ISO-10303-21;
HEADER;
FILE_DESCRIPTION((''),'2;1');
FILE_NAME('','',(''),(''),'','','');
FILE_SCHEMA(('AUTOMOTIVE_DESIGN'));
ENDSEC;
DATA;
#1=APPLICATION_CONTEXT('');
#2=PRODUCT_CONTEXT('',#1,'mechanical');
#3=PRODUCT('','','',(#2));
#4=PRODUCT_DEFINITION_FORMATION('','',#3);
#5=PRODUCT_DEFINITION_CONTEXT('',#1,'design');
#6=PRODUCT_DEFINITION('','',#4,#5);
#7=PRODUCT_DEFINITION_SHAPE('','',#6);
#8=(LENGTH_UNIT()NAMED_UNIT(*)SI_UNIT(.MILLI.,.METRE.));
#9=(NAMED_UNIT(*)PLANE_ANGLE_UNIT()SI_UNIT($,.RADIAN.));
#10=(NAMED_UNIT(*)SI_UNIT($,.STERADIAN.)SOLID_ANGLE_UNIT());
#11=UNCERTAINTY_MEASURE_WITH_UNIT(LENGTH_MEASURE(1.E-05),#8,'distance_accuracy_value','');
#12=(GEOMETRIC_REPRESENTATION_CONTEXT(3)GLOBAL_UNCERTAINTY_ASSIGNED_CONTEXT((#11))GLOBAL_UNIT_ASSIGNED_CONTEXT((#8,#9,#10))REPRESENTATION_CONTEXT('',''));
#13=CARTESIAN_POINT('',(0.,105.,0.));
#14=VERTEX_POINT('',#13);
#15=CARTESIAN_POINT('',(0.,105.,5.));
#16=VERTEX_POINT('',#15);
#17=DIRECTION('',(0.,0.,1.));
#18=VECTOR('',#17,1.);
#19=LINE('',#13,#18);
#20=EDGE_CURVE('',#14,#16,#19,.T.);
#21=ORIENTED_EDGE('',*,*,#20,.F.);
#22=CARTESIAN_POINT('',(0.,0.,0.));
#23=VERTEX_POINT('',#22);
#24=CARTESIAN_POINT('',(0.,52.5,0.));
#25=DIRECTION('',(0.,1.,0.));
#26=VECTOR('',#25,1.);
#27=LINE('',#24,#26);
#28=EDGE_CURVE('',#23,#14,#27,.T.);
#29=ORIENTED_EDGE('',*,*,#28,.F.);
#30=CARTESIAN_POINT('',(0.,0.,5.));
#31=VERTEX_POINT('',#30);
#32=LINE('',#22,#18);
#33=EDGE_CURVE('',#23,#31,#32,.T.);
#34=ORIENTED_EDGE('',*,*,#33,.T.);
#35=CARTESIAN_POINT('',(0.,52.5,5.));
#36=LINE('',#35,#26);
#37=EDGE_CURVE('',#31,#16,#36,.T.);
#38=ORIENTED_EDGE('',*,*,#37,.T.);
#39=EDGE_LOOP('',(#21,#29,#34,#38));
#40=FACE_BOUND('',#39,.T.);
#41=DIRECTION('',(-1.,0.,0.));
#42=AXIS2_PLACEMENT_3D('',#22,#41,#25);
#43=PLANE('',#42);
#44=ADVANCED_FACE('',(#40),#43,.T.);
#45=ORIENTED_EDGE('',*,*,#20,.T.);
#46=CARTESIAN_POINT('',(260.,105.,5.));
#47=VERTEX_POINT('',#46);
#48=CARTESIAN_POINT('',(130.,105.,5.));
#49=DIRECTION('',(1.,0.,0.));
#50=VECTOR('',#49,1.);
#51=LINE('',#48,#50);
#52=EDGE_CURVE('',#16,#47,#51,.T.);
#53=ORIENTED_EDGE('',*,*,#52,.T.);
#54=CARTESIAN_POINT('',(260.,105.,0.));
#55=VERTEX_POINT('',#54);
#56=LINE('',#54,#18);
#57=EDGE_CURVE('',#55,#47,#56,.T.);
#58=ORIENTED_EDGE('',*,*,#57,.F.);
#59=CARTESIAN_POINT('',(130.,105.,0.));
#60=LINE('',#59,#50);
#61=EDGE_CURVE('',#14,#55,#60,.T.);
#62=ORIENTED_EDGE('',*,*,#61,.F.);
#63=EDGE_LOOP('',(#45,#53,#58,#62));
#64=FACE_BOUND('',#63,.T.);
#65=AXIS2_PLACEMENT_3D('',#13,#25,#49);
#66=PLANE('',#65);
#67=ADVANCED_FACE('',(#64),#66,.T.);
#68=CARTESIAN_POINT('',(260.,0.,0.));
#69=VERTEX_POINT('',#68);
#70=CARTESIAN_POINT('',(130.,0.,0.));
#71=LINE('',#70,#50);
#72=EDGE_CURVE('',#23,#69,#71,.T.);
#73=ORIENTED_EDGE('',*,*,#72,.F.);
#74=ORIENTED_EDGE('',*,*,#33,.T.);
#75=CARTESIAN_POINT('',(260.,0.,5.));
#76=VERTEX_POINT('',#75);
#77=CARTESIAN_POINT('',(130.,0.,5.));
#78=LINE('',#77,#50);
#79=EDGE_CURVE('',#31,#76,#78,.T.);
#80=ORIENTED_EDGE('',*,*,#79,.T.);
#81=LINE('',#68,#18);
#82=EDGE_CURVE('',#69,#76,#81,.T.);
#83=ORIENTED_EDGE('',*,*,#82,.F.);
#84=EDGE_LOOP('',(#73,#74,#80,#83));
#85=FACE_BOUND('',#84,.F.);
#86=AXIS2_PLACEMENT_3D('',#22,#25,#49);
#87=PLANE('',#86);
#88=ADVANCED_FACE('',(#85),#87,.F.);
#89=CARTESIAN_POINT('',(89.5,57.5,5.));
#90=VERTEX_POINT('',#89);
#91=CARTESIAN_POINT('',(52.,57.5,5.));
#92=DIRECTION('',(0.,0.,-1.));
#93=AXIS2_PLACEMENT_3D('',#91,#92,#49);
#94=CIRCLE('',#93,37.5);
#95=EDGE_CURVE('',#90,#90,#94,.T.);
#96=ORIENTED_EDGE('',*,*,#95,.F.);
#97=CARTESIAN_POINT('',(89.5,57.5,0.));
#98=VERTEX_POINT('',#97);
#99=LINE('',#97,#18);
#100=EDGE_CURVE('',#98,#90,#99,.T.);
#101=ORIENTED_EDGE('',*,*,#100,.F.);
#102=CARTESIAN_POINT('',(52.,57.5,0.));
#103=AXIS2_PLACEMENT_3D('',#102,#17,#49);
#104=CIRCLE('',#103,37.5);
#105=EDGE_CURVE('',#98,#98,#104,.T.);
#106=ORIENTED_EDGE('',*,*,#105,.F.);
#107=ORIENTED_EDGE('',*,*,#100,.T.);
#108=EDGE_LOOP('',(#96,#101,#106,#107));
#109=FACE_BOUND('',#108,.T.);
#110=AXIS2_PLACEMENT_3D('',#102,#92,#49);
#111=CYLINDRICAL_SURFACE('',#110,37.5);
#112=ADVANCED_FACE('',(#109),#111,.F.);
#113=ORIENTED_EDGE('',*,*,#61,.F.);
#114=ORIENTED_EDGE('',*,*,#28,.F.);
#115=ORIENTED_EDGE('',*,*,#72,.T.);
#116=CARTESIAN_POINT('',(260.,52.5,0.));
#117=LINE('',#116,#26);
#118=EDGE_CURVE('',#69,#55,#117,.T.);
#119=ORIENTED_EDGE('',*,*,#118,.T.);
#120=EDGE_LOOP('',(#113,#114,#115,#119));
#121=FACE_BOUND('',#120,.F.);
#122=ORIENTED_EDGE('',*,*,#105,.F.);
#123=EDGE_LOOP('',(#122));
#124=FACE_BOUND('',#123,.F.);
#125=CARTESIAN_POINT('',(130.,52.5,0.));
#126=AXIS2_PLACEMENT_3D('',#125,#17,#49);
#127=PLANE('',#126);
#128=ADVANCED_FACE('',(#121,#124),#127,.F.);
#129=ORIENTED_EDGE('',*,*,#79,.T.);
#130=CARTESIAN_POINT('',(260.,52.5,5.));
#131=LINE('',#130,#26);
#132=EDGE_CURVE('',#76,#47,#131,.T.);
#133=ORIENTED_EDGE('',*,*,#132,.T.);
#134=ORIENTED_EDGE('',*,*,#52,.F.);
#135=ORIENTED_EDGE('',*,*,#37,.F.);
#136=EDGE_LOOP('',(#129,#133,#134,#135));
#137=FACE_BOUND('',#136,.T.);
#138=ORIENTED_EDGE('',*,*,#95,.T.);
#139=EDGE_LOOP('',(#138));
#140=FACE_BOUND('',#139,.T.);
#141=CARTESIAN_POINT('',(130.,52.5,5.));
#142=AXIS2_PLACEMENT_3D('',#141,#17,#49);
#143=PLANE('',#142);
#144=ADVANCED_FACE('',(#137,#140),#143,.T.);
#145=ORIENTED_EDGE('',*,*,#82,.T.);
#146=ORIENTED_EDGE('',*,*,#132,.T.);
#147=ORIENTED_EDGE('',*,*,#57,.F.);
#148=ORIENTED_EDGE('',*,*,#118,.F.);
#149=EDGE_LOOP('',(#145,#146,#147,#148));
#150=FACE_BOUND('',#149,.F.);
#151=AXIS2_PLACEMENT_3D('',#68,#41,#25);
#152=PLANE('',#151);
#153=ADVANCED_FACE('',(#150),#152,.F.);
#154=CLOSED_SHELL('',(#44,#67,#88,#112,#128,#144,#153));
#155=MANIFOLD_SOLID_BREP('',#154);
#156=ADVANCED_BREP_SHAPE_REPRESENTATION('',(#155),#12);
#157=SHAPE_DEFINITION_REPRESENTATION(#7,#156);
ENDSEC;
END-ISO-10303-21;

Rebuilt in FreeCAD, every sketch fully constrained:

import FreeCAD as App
import Part
import Sketcher

V = App.Vector


def add_polygon(sketch, points):
    """Adds a closed chain of lines whose ends are joined by coincident constraints."""
    first, n = sketch.GeometryCount, len(points)
    for a, b in zip(points, points[1:] + points[:1]):
        sketch.addGeometry(Part.LineSegment(App.Vector(*a, 0), App.Vector(*b, 0)), False)
    for i in range(n):
        sketch.addConstraint(Sketcher.Constraint("Coincident", first + i, 2, first + (i + 1) % n, 1))

doc = App.newDocument("Part")
params = doc.addObject("Spreadsheet::Sheet", "Params")
for row, (alias, value) in enumerate([
    ("sketch1_width", "260 mm"),
    ("sketch1_height", "105 mm"),
    ("pad1_length", "5 mm"),
    ("sketch2_diameter", "75 mm"),
], start=1):
    params.set(f"A{row}", alias)
    params.set(f"B{row}", "=" + value)
    params.setAlias(f"B{row}", alias)

body = doc.addObject("PartDesign::Body", "Body")

sketch1 = body.newObject("Sketcher::SketchObject", "Sketch")
sketch1.AttachmentSupport = (doc.getObject("XY_Plane"), [""])
sketch1.MapMode = "FlatFace"
add_polygon(sketch1, [(0, 105), (0, 0), (260, 0), (260, 105)])
sketch1.addConstraint([
    Sketcher.Constraint("Vertical", 0),
    Sketcher.Constraint("Horizontal", 1),
    Sketcher.Constraint("Vertical", 2),
    Sketcher.Constraint("Horizontal", 3),
    Sketcher.Constraint("Coincident", 0, 2, -1, 1),
    Sketcher.Constraint("DistanceX", 1, 1, 1, 2, 260.0),
    Sketcher.Constraint("DistanceY", 0, 2, 0, 1, 105.0),
])
sketch1.setExpression("Constraints[9]", "Params.sketch1_width")
sketch1.setExpression("Constraints[10]", "Params.sketch1_height")
pad1 = body.newObject("PartDesign::Pad", "Pad")
pad1.Profile = sketch1
pad1.setExpression("Length", "Params.pad1_length")

sketch2 = body.newObject("Sketcher::SketchObject", "Sketch001")
sketch2.AttachmentSupport = (doc.getObject("XY_Plane"), [""])
sketch2.MapMode = "FlatFace"
sketch2.addGeometry(Part.Circle(V(52, 58, 0), V(0, 0, 1), 38), False)
sketch2.addConstraint([
    Sketcher.Constraint("Diameter", 0, 75.0),
    Sketcher.Constraint("DistanceX", -1, 1, 0, 3, 52.0),
    Sketcher.Constraint("DistanceY", -1, 1, 0, 3, 57.5),
])
sketch2.setExpression("Constraints[0]", "Params.sketch2_diameter")
pocket1 = body.newObject("PartDesign::Pocket", "Pocket")
pocket1.Profile = sketch2
pocket1.Type = "ThroughAll"
pocket1.Reversed = True

doc.recompute()
